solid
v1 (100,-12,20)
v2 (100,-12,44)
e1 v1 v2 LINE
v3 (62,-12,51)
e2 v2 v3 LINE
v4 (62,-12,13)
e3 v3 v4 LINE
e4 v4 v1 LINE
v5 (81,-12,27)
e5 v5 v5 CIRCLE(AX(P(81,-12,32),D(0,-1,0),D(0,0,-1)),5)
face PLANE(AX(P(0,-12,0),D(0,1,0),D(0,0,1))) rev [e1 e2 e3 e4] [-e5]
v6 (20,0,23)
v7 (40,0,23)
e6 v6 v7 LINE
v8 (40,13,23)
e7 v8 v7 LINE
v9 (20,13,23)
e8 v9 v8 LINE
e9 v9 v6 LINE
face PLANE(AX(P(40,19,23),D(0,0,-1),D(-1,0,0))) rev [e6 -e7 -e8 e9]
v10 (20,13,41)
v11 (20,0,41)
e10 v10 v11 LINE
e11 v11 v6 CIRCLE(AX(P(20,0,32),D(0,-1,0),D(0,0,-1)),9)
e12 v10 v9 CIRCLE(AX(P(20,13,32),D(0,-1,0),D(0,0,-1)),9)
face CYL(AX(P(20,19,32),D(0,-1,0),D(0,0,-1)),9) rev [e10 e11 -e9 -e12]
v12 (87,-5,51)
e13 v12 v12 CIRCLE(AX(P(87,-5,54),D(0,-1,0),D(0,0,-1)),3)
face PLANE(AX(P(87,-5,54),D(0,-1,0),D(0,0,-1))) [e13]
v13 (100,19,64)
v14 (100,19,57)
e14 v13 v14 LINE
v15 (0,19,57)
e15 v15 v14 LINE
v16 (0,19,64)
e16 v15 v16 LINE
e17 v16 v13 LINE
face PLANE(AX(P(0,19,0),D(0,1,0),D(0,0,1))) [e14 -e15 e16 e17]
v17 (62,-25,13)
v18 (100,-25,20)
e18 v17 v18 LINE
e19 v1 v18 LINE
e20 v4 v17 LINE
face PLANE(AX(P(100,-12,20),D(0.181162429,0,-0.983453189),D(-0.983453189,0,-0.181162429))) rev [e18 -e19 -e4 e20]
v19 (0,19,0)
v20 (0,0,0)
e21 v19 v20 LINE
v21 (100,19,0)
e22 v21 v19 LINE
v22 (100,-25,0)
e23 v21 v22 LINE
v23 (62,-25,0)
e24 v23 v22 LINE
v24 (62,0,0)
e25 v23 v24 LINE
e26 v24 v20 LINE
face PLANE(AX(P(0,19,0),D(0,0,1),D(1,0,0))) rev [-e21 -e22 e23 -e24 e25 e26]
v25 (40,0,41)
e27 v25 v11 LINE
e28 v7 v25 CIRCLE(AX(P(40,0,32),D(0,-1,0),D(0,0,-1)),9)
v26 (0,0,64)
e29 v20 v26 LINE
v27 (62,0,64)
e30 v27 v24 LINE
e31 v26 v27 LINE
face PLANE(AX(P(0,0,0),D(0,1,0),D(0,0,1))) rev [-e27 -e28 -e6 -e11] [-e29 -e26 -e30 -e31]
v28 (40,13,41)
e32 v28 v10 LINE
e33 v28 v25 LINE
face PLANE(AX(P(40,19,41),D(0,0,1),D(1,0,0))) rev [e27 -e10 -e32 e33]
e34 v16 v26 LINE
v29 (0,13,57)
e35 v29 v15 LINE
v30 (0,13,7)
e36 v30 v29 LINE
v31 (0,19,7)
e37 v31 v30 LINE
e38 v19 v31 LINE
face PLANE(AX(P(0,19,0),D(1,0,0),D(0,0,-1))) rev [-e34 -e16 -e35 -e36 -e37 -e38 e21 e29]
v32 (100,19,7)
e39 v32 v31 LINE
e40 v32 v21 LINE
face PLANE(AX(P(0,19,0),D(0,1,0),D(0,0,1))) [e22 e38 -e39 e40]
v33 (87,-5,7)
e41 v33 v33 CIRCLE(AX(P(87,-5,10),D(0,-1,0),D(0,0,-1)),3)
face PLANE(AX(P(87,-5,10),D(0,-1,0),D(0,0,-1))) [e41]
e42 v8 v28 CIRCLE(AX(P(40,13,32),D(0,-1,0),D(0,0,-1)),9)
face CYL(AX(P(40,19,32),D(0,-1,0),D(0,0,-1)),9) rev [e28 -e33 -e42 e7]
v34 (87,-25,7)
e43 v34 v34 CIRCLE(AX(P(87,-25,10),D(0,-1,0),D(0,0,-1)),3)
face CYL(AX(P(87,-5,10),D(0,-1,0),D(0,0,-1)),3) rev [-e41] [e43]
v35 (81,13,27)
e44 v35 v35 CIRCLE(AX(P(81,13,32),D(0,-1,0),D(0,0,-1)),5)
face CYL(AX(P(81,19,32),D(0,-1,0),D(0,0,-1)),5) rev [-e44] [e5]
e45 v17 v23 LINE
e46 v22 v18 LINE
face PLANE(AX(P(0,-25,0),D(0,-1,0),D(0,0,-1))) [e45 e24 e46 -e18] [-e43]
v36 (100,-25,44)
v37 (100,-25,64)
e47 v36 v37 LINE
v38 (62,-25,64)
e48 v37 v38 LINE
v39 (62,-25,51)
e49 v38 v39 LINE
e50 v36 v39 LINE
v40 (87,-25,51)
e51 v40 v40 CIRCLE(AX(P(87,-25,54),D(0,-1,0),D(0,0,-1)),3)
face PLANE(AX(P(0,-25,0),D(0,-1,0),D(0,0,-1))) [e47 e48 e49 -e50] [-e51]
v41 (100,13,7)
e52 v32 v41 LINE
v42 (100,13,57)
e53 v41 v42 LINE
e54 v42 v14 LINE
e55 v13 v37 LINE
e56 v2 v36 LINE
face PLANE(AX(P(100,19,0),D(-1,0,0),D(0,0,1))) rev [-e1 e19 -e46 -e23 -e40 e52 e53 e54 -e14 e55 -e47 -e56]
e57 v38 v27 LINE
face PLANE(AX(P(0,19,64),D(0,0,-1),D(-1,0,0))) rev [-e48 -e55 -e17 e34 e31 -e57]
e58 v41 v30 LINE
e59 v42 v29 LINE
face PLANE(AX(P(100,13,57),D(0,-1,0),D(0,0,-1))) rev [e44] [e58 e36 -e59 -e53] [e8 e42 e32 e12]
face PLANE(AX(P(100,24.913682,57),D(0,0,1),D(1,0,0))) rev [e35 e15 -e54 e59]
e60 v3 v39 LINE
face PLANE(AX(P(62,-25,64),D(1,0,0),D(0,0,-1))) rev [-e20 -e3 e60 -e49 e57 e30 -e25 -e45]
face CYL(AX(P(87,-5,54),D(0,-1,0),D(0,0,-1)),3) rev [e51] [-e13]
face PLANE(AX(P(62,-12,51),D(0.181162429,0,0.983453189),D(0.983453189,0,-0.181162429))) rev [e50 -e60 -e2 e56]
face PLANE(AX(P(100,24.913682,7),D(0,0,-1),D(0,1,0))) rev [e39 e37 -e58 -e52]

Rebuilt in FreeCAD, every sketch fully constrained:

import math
import FreeCAD as App
import Part
import Sketcher
from FreeCAD import Vector

doc = App.newDocument("Part")
body = doc.addObject("PartDesign::Body", "Body")

# Sketch on XZ plane
sketch1 = body.newObject("Sketcher::SketchObject", "Sketch")
sketch1.AttachmentSupport = (doc.getObject("XZ_Plane"), [""])
sketch1.MapMode = "FlatFace"
sketch1.addGeometry([
    Part.LineSegment(Vector(0, 0, 0), Vector(0, 64, 0)),
    Part.LineSegment(Vector(0, 64, 0), Vector(100, 64, 0)),
    Part.LineSegment(Vector(100, 64, 0), Vector(100, 0, 0)),
    Part.LineSegment(Vector(100, 0, 0), Vector(0, 0, 0)),
], False)
sketch1.addConstraint([
    Sketcher.Constraint("Coincident", 0, 2, 1, 1),
    Sketcher.Constraint("Coincident", 1, 2, 2, 1),
    Sketcher.Constraint("Coincident", 2, 2, 3, 1),
    Sketcher.Constraint("Coincident", 3, 2, 0, 1),
    Sketcher.Constraint("Vertical", 0),
    Sketcher.Constraint("Horizontal", 1),
    Sketcher.Constraint("Vertical", 2),
    Sketcher.Constraint("Horizontal", 3),
    Sketcher.Constraint("Coincident", 3, 2, -1, 1),
    Sketcher.Constraint("DistanceX", 1, 1, 1, 2, 100.0),
    Sketcher.Constraint("DistanceY", 0, 1, 0, 2, 64.0),
])
pad1 = body.newObject("PartDesign::Pad", "Pad")
pad1.Profile = sketch1
pad1.Length = 19
pad1.Reversed = True

# Sketch on YZ plane
sketch2 = body.newObject("Sketcher::SketchObject", "Sketch001")
sketch2.AttachmentSupport = (doc.getObject("YZ_Plane"), [""])
sketch2.MapMode = "FlatFace"
sketch2.addGeometry([
    Part.LineSegment(Vector(25, 7, 0), Vector(13, 7, 0)),
    Part.LineSegment(Vector(13, 7, 0), Vector(13, 57, 0)),
    Part.LineSegment(Vector(13, 57, 0), Vector(25, 57, 0)),
    Part.LineSegment(Vector(25, 57, 0), Vector(25, 7, 0)),
], False)
sketch2.addConstraint([
    Sketcher.Constraint("Coincident", 0, 2, 1, 1),
    Sketcher.Constraint("Coincident", 1, 2, 2, 1),
    Sketcher.Constraint("Coincident", 2, 2, 3, 1),
    Sketcher.Constraint("Coincident", 3, 2, 0, 1),
    Sketcher.Constraint("Horizontal", 0),
    Sketcher.Constraint("Vertical", 1),
    Sketcher.Constraint("Horizontal", 2),
    Sketcher.Constraint("Vertical", 3),
    Sketcher.Constraint("DistanceY", 1, 1, 1, 2, 50.0),
    Sketcher.Constraint("DistanceX", -1, 1, 0, 2, 13.0),
    Sketcher.Constraint("DistanceY", -1, 1, 0, 2, 7.0),
    Sketcher.Constraint("DistanceX", 0, 2, 0, 1, 11.913682),
])
pocket1 = body.newObject("PartDesign::Pocket", "Pocket")
pocket1.Profile = sketch2
pocket1.Type = "ThroughAll"
pocket1.Reversed = True

# Sketch on XZ plane
sketch3 = body.newObject("Sketcher::SketchObject", "Sketch002")
sketch3.AttachmentSupport = (doc.getObject("XZ_Plane"), [""])
sketch3.MapMode = "FlatFace"
sketch3.addGeometry([
    Part.LineSegment(Vector(100, 0, 0), Vector(100, 64, 0)),
    Part.LineSegment(Vector(100, 64, 0), Vector(62, 64, 0)),
    Part.LineSegment(Vector(62, 64, 0), Vector(62, 0, 0)),
    Part.LineSegment(Vector(62, 0, 0), Vector(100, 0, 0)),
], False)
sketch3.addConstraint([
    Sketcher.Constraint("Coincident", 0, 2, 1, 1),
    Sketcher.Constraint("Coincident", 1, 2, 2, 1),
    Sketcher.Constraint("Coincident", 2, 2, 3, 1),
    Sketcher.Constraint("Coincident", 3, 2, 0, 1),
    Sketcher.Constraint("Vertical", 0),
    Sketcher.Constraint("Horizontal", 1),
    Sketcher.Constraint("Vertical", 2),
    Sketcher.Constraint("Horizontal", 3),
    Sketcher.Constraint("PointOnObject", 2, 2, -1),
    Sketcher.Constraint("DistanceX", 1, 2, 1, 1, 38.0),
    Sketcher.Constraint("DistanceY", 0, 1, 0, 2, 64.0),
    Sketcher.Constraint("DistanceX", -1, 1, 0, 2, 100.0),
])
pad2 = body.newObject("PartDesign::Pad", "Pad001")
pad2.Profile = sketch3
pad2.Length = 25

# Sketch on XZ plane
sketch4 = body.newObject("Sketcher::SketchObject", "Sketch003")
sketch4.AttachmentSupport = (doc.getObject("XZ_Plane"), [""])
sketch4.MapMode = "FlatFace"
sketch4.AttachmentOffset = App.Placement(Vector(0, 0, 25), App.Rotation())
sketch4.addGeometry([
    Part.LineSegment(Vector(100, 20, 0), Vector(100, 44, 0)),
    Part.LineSegment(Vector(100, 44, 0), Vector(62, 51, 0)),
    Part.LineSegment(Vector(62, 51, 0), Vector(62, 13, 0)),
    Part.LineSegment(Vector(62, 13, 0), Vector(100, 20, 0)),
], False)
sketch4.addConstraint([
    Sketcher.Constraint("Coincident", 0, 2, 1, 1),
    Sketcher.Constraint("Coincident", 1, 2, 2, 1),
    Sketcher.Constraint("Coincident", 2, 2, 3, 1),
    Sketcher.Constraint("Coincident", 3, 2, 0, 1),
    Sketcher.Constraint("Vertical", 0),
    Sketcher.Constraint("Vertical", 2),
    Sketcher.Constraint("Equal", 1, 3),
    Sketcher.Constraint("DistanceY", 0, 1, 0, 2, 24.0),
    Sketcher.Constraint("DistanceY", 2, 2, 2, 1, 38.0),
    Sketcher.Constraint("DistanceX", -1, 1, 0, 2, 100.0),
    Sketcher.Constraint("DistanceY", -1, 1, 0, 2, 44.0),
    Sketcher.Constraint("DistanceX", -1, 1, 1, 2, 62.0),
])
pocket2 = body.newObject("PartDesign::Pocket", "Pocket001")
pocket2.Profile = sketch4
pocket2.Length = 13

# Sketch on XZ plane
sketch5 = body.newObject("Sketcher::SketchObject", "Sketch004")
sketch5.AttachmentSupport = (doc.getObject("XZ_Plane"), [""])
sketch5.MapMode = "FlatFace"
sketch5.AttachmentOffset = App.Placement(Vector(0, 0, 12), App.Rotation())
sketch5.addGeometry(Part.Circle(Vector(81, 32, 0), Vector(0, 0, 1), 5), False)
sketch5.addConstraint([
    Sketcher.Constraint("Diameter", 0, 10.0),
    Sketcher.Constraint("DistanceX", -1, 1, 0, 3, 81.0),
    Sketcher.Constraint("DistanceY", -1, 1, 0, 3, 32.0),
])
pocket3 = body.newObject("PartDesign::Pocket", "Pocket002")
pocket3.Profile = sketch5
pocket3.Type = "ThroughAll"

# Sketch on XZ plane
sketch6 = body.newObject("Sketcher::SketchObject", "Sketch005")
sketch6.AttachmentSupport = (doc.getObject("XZ_Plane"), [""])
sketch6.MapMode = "FlatFace"
sketch6.AttachmentOffset = App.Placement(Vector(0, 0, 25), App.Rotation())
sketch6.addGeometry([
    Part.Circle(Vector(87, 10, 0), Vector(0, 0, 1), 3),
    Part.Circle(Vector(87, 54, 0), Vector(0, 0, 1), 3),
], False)
sketch6.addConstraint([
    Sketcher.Constraint("Equal", 0, 1),
    Sketcher.Constraint("Vertical", 0, 3, 1, 3),
    Sketcher.Constraint("Diameter", 0, 6.0),
    Sketcher.Constraint("DistanceX", -1, 1, 0, 3, 87.0),
    Sketcher.Constraint("DistanceY", -1, 1, 0, 3, 10.0),
    Sketcher.Constraint("DistanceY", -1, 1, 1, 3, 54.0),
])
pocket4 = body.newObject("PartDesign::Pocket", "Pocket003")
pocket4.Profile = sketch6
pocket4.Length = 20

# Sketch on XZ plane
sketch7 = body.newObject("Sketcher::SketchObject", "Sketch006")
sketch7.AttachmentSupport = (doc.getObject("XZ_Plane"), [""])
sketch7.MapMode = "FlatFace"
sketch7.addGeometry([
    Part.LineSegment(Vector(20, 23, 0), Vector(40, 23, 0)),
    Part.ArcOfCircle(Part.Circle(Vector(40, 32, 0), Vector(0, 0, 1), 9), math.radians(-90), math.radians(90)),
    Part.LineSegment(Vector(40, 41, 0), Vector(20, 41, 0)),
    Part.ArcOfCircle(Part.Circle(Vector(20, 32, 0), Vector(0, 0, 1), 9), math.radians(90), math.radians(270)),
], False)
sketch7.addConstraint([
    Sketcher.Constraint("Tangent", 0, 2, 1, 1),
    Sketcher.Constraint("Tangent", 1, 2, 2, 1),
    Sketcher.Constraint("Tangent", 2, 2, 3, 1),
    Sketcher.Constraint("Tangent", 3, 2, 0, 1),
    Sketcher.Constraint("Horizontal", 0),
    Sketcher.Constraint("Horizontal", 2),
    Sketcher.Constraint("Radius", 1, 9.0),
    Sketcher.Constraint("DistanceX", 0, 1, 0, 2, 20.0),
    Sketcher.Constraint("DistanceX", -1, 1, 1, 3, 40.0),
    Sketcher.Constraint("DistanceY", -1, 1, 1, 3, 32.0),
])
pocket5 = body.newObject("PartDesign::Pocket", "Pocket004")
pocket5.Profile = sketch7
pocket5.Type = "ThroughAll"

doc.recompute()
